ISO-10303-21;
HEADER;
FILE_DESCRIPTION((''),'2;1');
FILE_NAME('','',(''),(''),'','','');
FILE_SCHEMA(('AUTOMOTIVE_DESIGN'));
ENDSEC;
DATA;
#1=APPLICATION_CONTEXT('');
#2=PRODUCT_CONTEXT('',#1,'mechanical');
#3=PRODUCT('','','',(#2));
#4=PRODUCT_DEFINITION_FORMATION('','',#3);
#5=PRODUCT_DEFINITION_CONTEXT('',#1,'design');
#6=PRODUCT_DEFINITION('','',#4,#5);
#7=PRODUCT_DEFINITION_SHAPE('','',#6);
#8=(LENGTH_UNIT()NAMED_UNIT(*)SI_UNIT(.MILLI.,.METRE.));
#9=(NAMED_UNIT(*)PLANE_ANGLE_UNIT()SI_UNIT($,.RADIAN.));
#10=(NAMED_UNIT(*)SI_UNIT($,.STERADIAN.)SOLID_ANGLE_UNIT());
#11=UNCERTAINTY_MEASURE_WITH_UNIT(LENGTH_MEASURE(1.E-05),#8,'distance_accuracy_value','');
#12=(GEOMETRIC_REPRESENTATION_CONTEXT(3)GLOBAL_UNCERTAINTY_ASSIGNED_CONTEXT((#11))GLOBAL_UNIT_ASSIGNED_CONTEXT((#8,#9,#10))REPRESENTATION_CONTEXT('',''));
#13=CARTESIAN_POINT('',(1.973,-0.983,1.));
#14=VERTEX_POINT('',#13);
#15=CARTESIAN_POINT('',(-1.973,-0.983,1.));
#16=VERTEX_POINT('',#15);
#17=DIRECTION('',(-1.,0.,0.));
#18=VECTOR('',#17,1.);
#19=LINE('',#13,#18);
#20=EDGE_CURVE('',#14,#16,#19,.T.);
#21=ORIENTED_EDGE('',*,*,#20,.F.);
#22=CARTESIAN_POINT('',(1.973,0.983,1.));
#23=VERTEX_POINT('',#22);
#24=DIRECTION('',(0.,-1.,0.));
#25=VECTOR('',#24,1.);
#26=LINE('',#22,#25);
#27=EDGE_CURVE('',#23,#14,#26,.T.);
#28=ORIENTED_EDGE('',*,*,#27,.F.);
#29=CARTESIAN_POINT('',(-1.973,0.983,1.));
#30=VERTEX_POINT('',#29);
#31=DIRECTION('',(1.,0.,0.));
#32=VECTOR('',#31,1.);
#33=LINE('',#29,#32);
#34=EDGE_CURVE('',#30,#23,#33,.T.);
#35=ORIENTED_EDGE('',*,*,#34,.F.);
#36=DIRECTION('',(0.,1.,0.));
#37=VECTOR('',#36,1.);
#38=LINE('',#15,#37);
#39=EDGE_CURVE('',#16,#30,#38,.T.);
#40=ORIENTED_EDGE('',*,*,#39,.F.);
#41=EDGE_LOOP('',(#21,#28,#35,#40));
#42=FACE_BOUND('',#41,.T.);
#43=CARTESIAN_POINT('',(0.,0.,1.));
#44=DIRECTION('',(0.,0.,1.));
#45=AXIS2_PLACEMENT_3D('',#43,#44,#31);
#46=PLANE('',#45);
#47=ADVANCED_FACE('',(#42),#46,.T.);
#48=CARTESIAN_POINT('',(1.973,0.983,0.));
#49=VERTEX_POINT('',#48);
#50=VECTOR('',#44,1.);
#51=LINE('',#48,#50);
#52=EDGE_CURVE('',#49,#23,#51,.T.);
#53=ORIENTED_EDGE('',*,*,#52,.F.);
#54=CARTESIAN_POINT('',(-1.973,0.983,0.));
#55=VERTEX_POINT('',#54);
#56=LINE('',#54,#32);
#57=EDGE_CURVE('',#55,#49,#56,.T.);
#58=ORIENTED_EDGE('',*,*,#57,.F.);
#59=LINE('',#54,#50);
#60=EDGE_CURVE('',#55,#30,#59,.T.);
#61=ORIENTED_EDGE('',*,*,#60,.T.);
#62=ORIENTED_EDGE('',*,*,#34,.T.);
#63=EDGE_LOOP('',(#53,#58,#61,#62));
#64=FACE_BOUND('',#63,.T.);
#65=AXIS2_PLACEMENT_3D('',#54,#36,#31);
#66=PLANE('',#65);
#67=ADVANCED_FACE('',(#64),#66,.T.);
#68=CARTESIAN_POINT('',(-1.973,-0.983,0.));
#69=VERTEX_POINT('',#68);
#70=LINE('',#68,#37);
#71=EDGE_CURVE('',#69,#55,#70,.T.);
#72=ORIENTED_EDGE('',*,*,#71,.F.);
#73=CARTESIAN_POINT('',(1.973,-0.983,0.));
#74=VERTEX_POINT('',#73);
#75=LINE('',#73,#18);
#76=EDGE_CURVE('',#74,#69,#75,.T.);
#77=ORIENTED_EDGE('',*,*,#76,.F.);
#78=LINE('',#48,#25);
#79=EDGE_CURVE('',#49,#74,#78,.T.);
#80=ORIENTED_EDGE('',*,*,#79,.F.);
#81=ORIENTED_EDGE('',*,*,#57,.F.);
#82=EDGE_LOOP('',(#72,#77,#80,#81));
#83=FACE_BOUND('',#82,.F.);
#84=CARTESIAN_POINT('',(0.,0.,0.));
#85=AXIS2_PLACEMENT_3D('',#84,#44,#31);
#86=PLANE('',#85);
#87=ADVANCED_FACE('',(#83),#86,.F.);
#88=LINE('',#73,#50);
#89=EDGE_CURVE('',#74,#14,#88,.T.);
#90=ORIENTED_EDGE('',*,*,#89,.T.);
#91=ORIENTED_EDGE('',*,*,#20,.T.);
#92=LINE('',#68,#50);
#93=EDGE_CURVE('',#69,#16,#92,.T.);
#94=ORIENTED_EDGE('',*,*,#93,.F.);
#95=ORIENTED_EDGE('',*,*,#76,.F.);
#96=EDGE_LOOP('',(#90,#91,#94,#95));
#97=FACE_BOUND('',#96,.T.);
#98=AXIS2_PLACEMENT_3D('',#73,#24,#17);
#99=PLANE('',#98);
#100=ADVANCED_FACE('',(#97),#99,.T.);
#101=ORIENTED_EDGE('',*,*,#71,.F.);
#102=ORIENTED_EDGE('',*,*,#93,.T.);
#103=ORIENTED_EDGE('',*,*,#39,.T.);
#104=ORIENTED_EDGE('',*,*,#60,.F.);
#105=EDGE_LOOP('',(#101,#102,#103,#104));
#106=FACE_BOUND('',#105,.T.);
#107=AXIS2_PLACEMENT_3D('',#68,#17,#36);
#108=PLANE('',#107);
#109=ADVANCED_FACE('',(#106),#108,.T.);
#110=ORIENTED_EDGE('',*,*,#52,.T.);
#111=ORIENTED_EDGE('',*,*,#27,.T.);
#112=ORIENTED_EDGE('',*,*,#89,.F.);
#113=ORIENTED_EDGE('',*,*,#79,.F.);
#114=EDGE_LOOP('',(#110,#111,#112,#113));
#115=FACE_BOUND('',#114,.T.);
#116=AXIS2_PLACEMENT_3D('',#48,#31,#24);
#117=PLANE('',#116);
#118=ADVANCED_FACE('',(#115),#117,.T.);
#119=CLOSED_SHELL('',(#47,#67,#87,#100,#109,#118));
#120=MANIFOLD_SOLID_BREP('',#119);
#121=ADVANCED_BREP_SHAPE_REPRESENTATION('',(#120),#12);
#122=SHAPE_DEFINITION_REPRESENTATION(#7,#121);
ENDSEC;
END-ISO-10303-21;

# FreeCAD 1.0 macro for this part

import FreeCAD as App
import Part
import Sketcher
from FreeCAD import Vector
Q = App.Units.Quantity


def add_polygon(sketch, points):
    """Adds a closed chain of lines whose ends are joined by coincident constraints."""
    first, n = sketch.GeometryCount, len(points)
    for a, b in zip(points, points[1:] + points[:1]):
        sketch.addGeometry(Part.LineSegment(App.Vector(*a, 0), App.Vector(*b, 0)), False)
    for i in range(n):
        sketch.addConstraint(Sketcher.Constraint("Coincident", first + i, 2, first + (i + 1) % n, 1))

doc = App.newDocument("Part")
body = doc.addObject("PartDesign::Body", "Body")

# Sketch on XY plane
sketch1 = doc.addObject("Sketcher::SketchObject", "Sketch")
body.addObject(sketch1)
sketch1.AttachmentSupport = (doc.XY_Plane, [""])
sketch1.MapMode = "FlatFace"
add_polygon(sketch1, [(2, 1), (-2, 1), (-2, -1), (2, -1)])  # lines 0-3
sketch1.addConstraint([
    Sketcher.Constraint("Horizontal", 0),
    Sketcher.Constraint("Vertical", 1),
    Sketcher.Constraint("Horizontal", 2),
    Sketcher.Constraint("Vertical", 3),
    Sketcher.Constraint("Symmetric", 0, 2, 2, 2, -1, 1),
    Sketcher.Constraint("DistanceX", 0, 2, 0, 1, Q("3.946 mm")),
    Sketcher.Constraint("DistanceY", 1, 2, 1, 1, Q("1.966 mm")),
])
pad1 = doc.addObject("PartDesign::Pad", "Pad")
body.addObject(pad1)
pad1.Profile = sketch1
pad1.Length = 1

doc.recompute()
